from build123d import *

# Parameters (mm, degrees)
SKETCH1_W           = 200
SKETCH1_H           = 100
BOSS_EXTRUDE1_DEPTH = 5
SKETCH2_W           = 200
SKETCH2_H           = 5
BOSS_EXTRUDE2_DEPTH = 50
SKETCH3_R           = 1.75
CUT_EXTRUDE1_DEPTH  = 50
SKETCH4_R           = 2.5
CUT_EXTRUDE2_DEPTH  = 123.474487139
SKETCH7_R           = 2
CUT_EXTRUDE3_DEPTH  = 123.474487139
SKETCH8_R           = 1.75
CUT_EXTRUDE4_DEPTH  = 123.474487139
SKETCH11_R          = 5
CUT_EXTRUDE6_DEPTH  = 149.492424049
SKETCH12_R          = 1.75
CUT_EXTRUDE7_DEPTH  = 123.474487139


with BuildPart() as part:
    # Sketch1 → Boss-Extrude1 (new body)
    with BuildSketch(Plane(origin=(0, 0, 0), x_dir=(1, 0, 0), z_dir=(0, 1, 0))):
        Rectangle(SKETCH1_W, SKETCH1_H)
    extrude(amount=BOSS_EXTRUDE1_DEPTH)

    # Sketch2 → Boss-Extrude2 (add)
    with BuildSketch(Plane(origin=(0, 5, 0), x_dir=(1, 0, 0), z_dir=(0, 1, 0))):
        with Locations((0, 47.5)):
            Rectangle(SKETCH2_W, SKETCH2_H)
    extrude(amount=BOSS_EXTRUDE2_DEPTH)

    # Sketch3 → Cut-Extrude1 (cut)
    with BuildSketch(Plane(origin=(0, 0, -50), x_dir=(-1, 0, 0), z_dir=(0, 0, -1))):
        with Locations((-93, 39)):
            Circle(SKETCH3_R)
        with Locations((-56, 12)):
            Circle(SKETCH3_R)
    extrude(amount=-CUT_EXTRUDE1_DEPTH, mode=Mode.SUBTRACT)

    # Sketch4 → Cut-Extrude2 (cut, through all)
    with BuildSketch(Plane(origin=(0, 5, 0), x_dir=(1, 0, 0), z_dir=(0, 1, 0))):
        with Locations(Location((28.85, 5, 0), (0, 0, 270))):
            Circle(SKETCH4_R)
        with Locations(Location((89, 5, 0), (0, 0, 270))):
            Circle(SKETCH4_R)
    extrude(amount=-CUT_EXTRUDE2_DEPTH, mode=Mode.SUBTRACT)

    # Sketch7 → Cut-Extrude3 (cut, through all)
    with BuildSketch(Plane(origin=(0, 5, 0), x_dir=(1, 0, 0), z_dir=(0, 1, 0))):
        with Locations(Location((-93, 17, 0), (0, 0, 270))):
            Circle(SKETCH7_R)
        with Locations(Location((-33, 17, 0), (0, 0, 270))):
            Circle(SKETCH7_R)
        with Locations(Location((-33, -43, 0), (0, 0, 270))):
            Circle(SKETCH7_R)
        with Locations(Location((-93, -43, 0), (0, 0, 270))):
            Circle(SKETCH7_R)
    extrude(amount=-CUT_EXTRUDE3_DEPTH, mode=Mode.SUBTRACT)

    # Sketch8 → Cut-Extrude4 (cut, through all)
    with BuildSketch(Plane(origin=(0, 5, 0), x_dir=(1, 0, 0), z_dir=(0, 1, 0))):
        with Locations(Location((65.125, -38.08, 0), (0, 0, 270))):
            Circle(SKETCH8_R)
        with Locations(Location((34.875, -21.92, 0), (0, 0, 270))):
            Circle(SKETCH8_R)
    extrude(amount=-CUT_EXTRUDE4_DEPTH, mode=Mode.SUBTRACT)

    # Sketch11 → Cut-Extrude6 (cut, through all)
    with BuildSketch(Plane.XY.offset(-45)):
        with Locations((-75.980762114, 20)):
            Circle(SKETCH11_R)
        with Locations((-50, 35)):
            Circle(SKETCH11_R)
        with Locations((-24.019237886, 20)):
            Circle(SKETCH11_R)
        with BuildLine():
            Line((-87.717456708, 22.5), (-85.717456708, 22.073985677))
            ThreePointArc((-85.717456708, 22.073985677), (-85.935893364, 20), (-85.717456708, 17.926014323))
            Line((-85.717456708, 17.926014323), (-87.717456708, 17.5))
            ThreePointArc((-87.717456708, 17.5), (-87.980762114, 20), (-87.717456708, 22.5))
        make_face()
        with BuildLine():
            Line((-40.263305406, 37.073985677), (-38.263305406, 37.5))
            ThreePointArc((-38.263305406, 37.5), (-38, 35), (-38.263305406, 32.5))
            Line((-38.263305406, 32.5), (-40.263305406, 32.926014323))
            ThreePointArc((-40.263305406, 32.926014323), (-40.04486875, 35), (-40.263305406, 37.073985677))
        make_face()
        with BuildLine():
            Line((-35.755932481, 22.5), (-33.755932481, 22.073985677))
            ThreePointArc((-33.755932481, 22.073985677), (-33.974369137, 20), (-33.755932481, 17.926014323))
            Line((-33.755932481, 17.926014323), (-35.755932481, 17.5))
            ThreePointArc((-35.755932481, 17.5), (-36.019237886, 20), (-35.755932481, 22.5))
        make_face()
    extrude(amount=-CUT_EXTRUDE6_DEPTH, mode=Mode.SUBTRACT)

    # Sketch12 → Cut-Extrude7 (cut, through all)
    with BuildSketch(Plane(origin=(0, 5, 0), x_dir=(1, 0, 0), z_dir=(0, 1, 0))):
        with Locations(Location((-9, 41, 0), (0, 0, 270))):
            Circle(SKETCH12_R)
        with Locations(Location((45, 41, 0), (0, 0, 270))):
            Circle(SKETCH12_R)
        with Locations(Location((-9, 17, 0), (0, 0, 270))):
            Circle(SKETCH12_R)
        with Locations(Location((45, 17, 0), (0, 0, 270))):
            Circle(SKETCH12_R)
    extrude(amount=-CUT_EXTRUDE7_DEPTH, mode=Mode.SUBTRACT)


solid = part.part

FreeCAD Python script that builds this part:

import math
import FreeCAD as App
import Part
import Sketcher
Q = App.Units.Quantity

doc = App.newDocument("Part")
body = doc.addObject("PartDesign::Body", "Body")

sketch1 = body.newObject("Sketcher::SketchObject", "Sketch")
sketch1.AttachmentSupport = (doc.getObject("XZ_Plane"), [""])
sketch1.MapMode = "FlatFace"
sketch1.addGeometry([
    Part.LineSegment(App.Vector(-100, -50, 0), App.Vector(-100, 50, 0)),
    Part.LineSegment(App.Vector(-100, 50, 0), App.Vector(100, 50, 0)),
    Part.LineSegment(App.Vector(100, 50, 0), App.Vector(100, -50, 0)),
    Part.LineSegment(App.Vector(100, -50, 0), App.Vector(-100, -50, 0)),
], False)
sketch1.addConstraint([
    Sketcher.Constraint("Coincident", 0, 2, 1, 1),
    Sketcher.Constraint("Coincident", 1, 2, 2, 1),
    Sketcher.Constraint("Coincident", 2, 2, 3, 1),
    Sketcher.Constraint("Coincident", 3, 2, 0, 1),
    Sketcher.Constraint("Vertical", 0),
    Sketcher.Constraint("Horizontal", 1),
    Sketcher.Constraint("Vertical", 2),
    Sketcher.Constraint("Horizontal", 3),
    Sketcher.Constraint("Symmetric", 0, 2, 2, 2, -1, 1),
    Sketcher.Constraint("DistanceX", 1, 1, 1, 2, Q("200 mm")),
    Sketcher.Constraint("DistanceY", 0, 1, 0, 2, Q("100 mm")),
])
pad1 = body.newObject("PartDesign::Pad", "Pad")
pad1.Profile = sketch1
pad1.Length = 5
pad1.Reversed = True

sketch2 = body.newObject("Sketcher::SketchObject", "Sketch001")
sketch2.AttachmentSupport = (doc.getObject("XZ_Plane"), [""])
sketch2.MapMode = "FlatFace"
sketch2.AttachmentOffset = App.Placement(App.Vector(0, 0, -5), App.Rotation())
sketch2.addGeometry([
    Part.LineSegment(App.Vector(-100, -50, 0), App.Vector(-100, -45, 0)),
    Part.LineSegment(App.Vector(-100, -45, 0), App.Vector(100, -45, 0)),
    Part.LineSegment(App.Vector(100, -45, 0), App.Vector(100, -50, 0)),
    Part.LineSegment(App.Vector(100, -50, 0), App.Vector(-100, -50, 0)),
], False)
sketch2.addConstraint([
    Sketcher.Constraint("Coincident", 0, 2, 1, 1),
    Sketcher.Constraint("Coincident", 1, 2, 2, 1),
    Sketcher.Constraint("Coincident", 2, 2, 3, 1),
    Sketcher.Constraint("Coincident", 3, 2, 0, 1),
    Sketcher.Constraint("Vertical", 0),
    Sketcher.Constraint("Horizontal", 1),
    Sketcher.Constraint("Vertical", 2),
    Sketcher.Constraint("Horizontal", 3),
    Sketcher.Constraint("DistanceX", 1, 1, 1, 2, Q("200 mm")),
    Sketcher.Constraint("DistanceY", 0, 1, 0, 2, Q("5 mm")),
    Sketcher.Constraint("DistanceX", 0, 2, -1, 1, Q("100 mm")),
    Sketcher.Constraint("DistanceY", 0, 2, -1, 1, Q("45 mm")),
])
pad2 = body.newObject("PartDesign::Pad", "Pad001")
pad2.Profile = sketch2
pad2.Length = 50
pad2.Reversed = True

sketch3 = body.newObject("Sketcher::SketchObject", "Sketch002")
sketch3.AttachmentSupport = (doc.getObject("XY_Plane"), [""])
sketch3.MapMode = "FlatFace"
sketch3.AttachmentOffset = App.Placement(App.Vector(0, 0, -50), App.Rotation())
sketch3.addGeometry([
    Part.Circle(App.Vector(93, 39, 0), App.Vector(0, 0, 1), 1.75),
    Part.Circle(App.Vector(56, 12, 0), App.Vector(0, 0, 1), 1.75),
], False)
sketch3.addConstraint([
    Sketcher.Constraint("Equal", 0, 1),
    Sketcher.Constraint("Diameter", 0, Q("3.5 mm")),
    Sketcher.Constraint("DistanceX", -1, 1, 0, 3, Q("93 mm")),
    Sketcher.Constraint("DistanceY", -1, 1, 0, 3, Q("39 mm")),
    Sketcher.Constraint("DistanceX", -1, 1, 1, 3, Q("56 mm")),
    Sketcher.Constraint("DistanceY", -1, 1, 1, 3, Q("12 mm")),
])
pocket1 = body.newObject("PartDesign::Pocket", "Pocket")
pocket1.Profile = sketch3
pocket1.Length = 50
pocket1.Reversed = True

sketch4 = body.newObject("Sketcher::SketchObject", "Sketch003")
sketch4.AttachmentSupport = (doc.getObject("XZ_Plane"), [""])
sketch4.MapMode = "FlatFace"
sketch4.AttachmentOffset = App.Placement(App.Vector(0, 0, -5), App.Rotation())
sketch4.addGeometry([
    Part.Circle(App.Vector(28.85, -5, 0), App.Vector(0, 0, 1), 2.5),
    Part.Circle(App.Vector(89, -5, 0), App.Vector(0, 0, 1), 2.5),
], False)
sketch4.addConstraint([
    Sketcher.Constraint("Equal", 0, 1),
    Sketcher.Constraint("Horizontal", 0, 3, 1, 3),
    Sketcher.Constraint("Diameter", 0, Q("5 mm")),
    Sketcher.Constraint("DistanceY", 0, 3, -1, 1, Q("5 mm")),
    Sketcher.Constraint("DistanceX", -1, 1, 1, 3, Q("89 mm")),
    Sketcher.Constraint("DistanceX", -1, 1, 0, 3, Q("28.85 mm")),
])
pocket2 = body.newObject("PartDesign::Pocket", "Pocket001")
pocket2.Profile = sketch4
pocket2.Type = "ThroughAll"
pocket2.Reversed = True

sketch5 = body.newObject("Sketcher::SketchObject", "Sketch004")
sketch5.AttachmentSupport = (doc.getObject("XZ_Plane"), [""])
sketch5.MapMode = "FlatFace"
sketch5.AttachmentOffset = App.Placement(App.Vector(0, 0, -5), App.Rotation())
sketch5.addGeometry([
    Part.Circle(App.Vector(-93, -17, 0), App.Vector(0, 0, 1), 2),
    Part.Circle(App.Vector(-33, -17, 0), App.Vector(0, 0, 1), 2),
    Part.Circle(App.Vector(-33, 43, 0), App.Vector(0, 0, 1), 2),
    Part.Circle(App.Vector(-93, 43, 0), App.Vector(0, 0, 1), 2),
], False)
sketch5.addConstraint([
    Sketcher.Constraint("Equal", 0, 1),
    Sketcher.Constraint("Equal", 1, 2),
    Sketcher.Constraint("Equal", 2, 3),
    Sketcher.Constraint("Horizontal", 0, 3, 1, 3),
    Sketcher.Constraint("Horizontal", 2, 3, 3, 3),
    Sketcher.Constraint("Vertical", 1, 3, 2, 3),
    Sketcher.Constraint("Vertical", 0, 3, 3, 3),
    Sketcher.Constraint("Diameter", 0, Q("4 mm")),
    Sketcher.Constraint("DistanceX", 0, 3, -1, 1, Q("93 mm")),
    Sketcher.Constraint("DistanceY", 0, 3, -1, 1, Q("17 mm")),
    Sketcher.Constraint("DistanceX", 1, 3, -1, 1, Q("33 mm")),
    Sketcher.Constraint("DistanceY", -1, 1, 2, 3, Q("43 mm")),
])
pocket3 = body.newObject("PartDesign::Pocket", "Pocket002")
pocket3.Profile = sketch5
pocket3.Type = "ThroughAll"
pocket3.Reversed = True

sketch6 = body.newObject("Sketcher::SketchObject", "Sketch005")
sketch6.AttachmentSupport = (doc.getObject("XZ_Plane"), [""])
sketch6.MapMode = "FlatFace"
sketch6.AttachmentOffset = App.Placement(App.Vector(0, 0, -5), App.Rotation())
sketch6.addGeometry([
    Part.Circle(App.Vector(65.125, 38.08, 0), App.Vector(0, 0, 1), 1.75),
    Part.Circle(App.Vector(34.875, 21.92, 0), App.Vector(0, 0, 1), 1.75),
], False)
sketch6.addConstraint([
    Sketcher.Constraint("Equal", 0, 1),
    Sketcher.Constraint("Diameter", 0, Q("3.5 mm")),
    Sketcher.Constraint("DistanceY", -1, 1, 0, 3, Q("38.08 mm")),
    Sketcher.Constraint("DistanceY", -1, 1, 1, 3, Q("21.92 mm")),
    Sketcher.Constraint("DistanceX", 1, 3, 0, 3, Q("30.25 mm")),
    Sketcher.Constraint("DistanceX", -1, 1, 0, 3, Q("65.125 mm")),
])
pocket4 = body.newObject("PartDesign::Pocket", "Pocket003")
pocket4.Profile = sketch6
pocket4.Type = "ThroughAll"
pocket4.Reversed = True

sketch7 = body.newObject("Sketcher::SketchObject", "Sketch006")
sketch7.AttachmentSupport = (doc.getObject("XY_Plane"), [""])
sketch7.MapMode = "FlatFace"
sketch7.AttachmentOffset = App.Placement(App.Vector(0, 0, -45), App.Rotation())
sketch7.addGeometry([
    Part.Circle(App.Vector(-75.980762, 20, 0), App.Vector(0, 0, 1), 5),
    Part.Circle(App.Vector(-50, 35, 0), App.Vector(0, 0, 1), 5),
    Part.Circle(App.Vector(-24.019238, 20, 0), App.Vector(0, 0, 1), 5),
    Part.LineSegment(App.Vector(-85.717457, 22.073986, 0), App.Vector(-87.717457, 22.5, 0)),
    Part.ArcOfCircle(Part.Circle(App.Vector(-75.980762, 20, 0), App.Vector(0, 0, 1), 12), math.radians(167.975301), math.radians(192.024699)),
    Part.LineSegment(App.Vector(-87.717457, 17.5, 0), App.Vector(-85.717457, 17.926014, 0)),
    Part.ArcOfCircle(Part.Circle(App.Vector(-75.980762, 20, 0), App.Vector(0, 0, 1), 9.955131), math.radians(167.975301), math.radians(192.024699)),
    Part.LineSegment(App.Vector(-38.263305, 37.5, 0), App.Vector(-40.263305, 37.073986, 0)),
    Part.ArcOfCircle(Part.Circle(App.Vector(-50, 35, 0), App.Vector(0, 0, 1), 9.955131), math.radians(-12.024699), math.radians(12.024699)),
    Part.LineSegment(App.Vector(-40.263305, 32.926014, 0), App.Vector(-38.263305, 32.5, 0)),
    Part.ArcOfCircle(Part.Circle(App.Vector(-50, 35, 0), App.Vector(0, 0, 1), 12), math.radians(-12.024699), math.radians(12.024699)),
    Part.LineSegment(App.Vector(-33.755932, 22.073986, 0), App.Vector(-35.755932, 22.5, 0)),
    Part.ArcOfCircle(Part.Circle(App.Vector(-24.019238, 20, 0), App.Vector(0, 0, 1), 12), math.radians(167.975301), math.radians(192.024699)),
    Part.LineSegment(App.Vector(-35.755932, 17.5, 0), App.Vector(-33.755932, 17.926014, 0)),
    Part.ArcOfCircle(Part.Circle(App.Vector(-24.019238, 20, 0), App.Vector(0, 0, 1), 9.955131), math.radians(167.975301), math.radians(192.024699)),
], False)
sketch7.addConstraint([
    Sketcher.Constraint("Coincident", 3, 2, 4, 1),
    Sketcher.Constraint("Coincident", 4, 2, 5, 1),
    Sketcher.Constraint("Coincident", 5, 2, 6, 2),
    Sketcher.Constraint("Coincident", 6, 1, 3, 1),
    Sketcher.Constraint("Coincident", 7, 2, 8, 2),
    Sketcher.Constraint("Coincident", 8, 1, 9, 1),
    Sketcher.Constraint("Coincident", 9, 2, 10, 1),
    Sketcher.Constraint("Coincident", 10, 2, 7, 1),
    Sketcher.Constraint("Coincident", 11, 2, 12, 1),
    Sketcher.Constraint("Coincident", 12, 2, 13, 1),
    Sketcher.Constraint("Coincident", 13, 2, 14, 2),
    Sketcher.Constraint("Coincident", 14, 1, 11, 1),
    Sketcher.Constraint("Coincident", 4, 3, 0, 3),
    Sketcher.Constraint("Coincident", 6, 3, 0, 3),
    Sketcher.Constraint("Coincident", 8, 3, 1, 3),
    Sketcher.Constraint("Coincident", 10, 3, 1, 3),
    Sketcher.Constraint("Coincident", 12, 3, 2, 3),
    Sketcher.Constraint("Coincident", 14, 3, 2, 3),
    Sketcher.Constraint("Equal", 0, 1),
    Sketcher.Constraint("Equal", 1, 2),
    Sketcher.Constraint("Equal", 6, 8),
    Sketcher.Constraint("Equal", 4, 10),
    Sketcher.Constraint("Equal", 10, 12),
    Sketcher.Constraint("Equal", 8, 14),
    Sketcher.Constraint("Parallel", 5, 7),
    Sketcher.Constraint("Parallel", 3, 9),
    Sketcher.Constraint("Parallel", 9, 11),
    Sketcher.Constraint("Parallel", 7, 13),
    Sketcher.Constraint("Horizontal", 0, 3, 2, 3),
    Sketcher.Constraint("Horizontal", 3, 2, 11, 2),
    Sketcher.Constraint("Horizontal", 4, 2, 12, 2),
    Sketcher.Constraint("Vertical", 3, 2, 4, 2),
    Sketcher.Constraint("Vertical", 5, 2, 6, 1),
    Sketcher.Constraint("Vertical", 7, 2, 8, 1),
    Sketcher.Constraint("Diameter", 0, Q("10 mm")),
    Sketcher.Constraint("Radius", 4, Q("12 mm")),
    Sketcher.Constraint("DistanceY", -1, 1, 0, 3, Q("20 mm")),
    Sketcher.Constraint("DistanceX", 1, 3, -1, 1, Q("50 mm")),
    Sketcher.Constraint("DistanceY", -1, 1, 1, 3, Q("35 mm")),
    Sketcher.Constraint("DistanceY", 4, 2, 3, 2, Q("5 mm")),
    Sketcher.Constraint("DistanceX", 4, 2, 5, 2, Q("2 mm")),
    Sketcher.Constraint("DistanceY", 9, 2, 10, 2, Q("5 mm")),
    Sketcher.Constraint("Radius", 6, Q("9.955131 mm")),
    Sketcher.Constraint("DistanceX", 0, 3, -1, 1, Q("75.980762 mm")),
    Sketcher.Constraint("DistanceX", 2, 3, -1, 1, Q("24.019238 mm")),
])
pocket5 = body.newObject("PartDesign::Pocket", "Pocket004")
pocket5.Profile = sketch7
pocket5.Type = "ThroughAll"

sketch8 = body.newObject("Sketcher::SketchObject", "Sketch007")
sketch8.AttachmentSupport = (doc.getObject("XZ_Plane"), [""])
sketch8.MapMode = "FlatFace"
sketch8.AttachmentOffset = App.Placement(App.Vector(0, 0, -5), App.Rotation())
sketch8.addGeometry([
    Part.Circle(App.Vector(-9, -41, 0), App.Vector(0, 0, 1), 1.75),
    Part.Circle(App.Vector(45, -41, 0), App.Vector(0, 0, 1), 1.75),
    Part.Circle(App.Vector(-9, -17, 0), App.Vector(0, 0, 1), 1.75),
    Part.Circle(App.Vector(45, -17, 0), App.Vector(0, 0, 1), 1.75),
], False)
sketch8.addConstraint([
    Sketcher.Constraint("Equal", 0, 1),
    Sketcher.Constraint("Equal", 1, 2),
    Sketcher.Constraint("Equal", 2, 3),
    Sketcher.Constraint("Horizontal", 0, 3, 1, 3),
    Sketcher.Constraint("Horizontal", 2, 3, 3, 3),
    Sketcher.Constraint("Vertical", 0, 3, 2, 3),
    Sketcher.Constraint("Vertical", 1, 3, 3, 3),
    Sketcher.Constraint("Diameter", 0, Q("3.5 mm")),
    Sketcher.Constraint("DistanceX", 0, 3, -1, 1, Q("9 mm")),
    Sketcher.Constraint("DistanceY", 0, 3, -1, 1, Q("41 mm")),
    Sketcher.Constraint("DistanceX", -1, 1, 1, 3, Q("45 mm")),
    Sketcher.Constraint("DistanceY", 2, 3, -1, 1, Q("17 mm")),
])
pocket6 = body.newObject("PartDesign::Pocket", "Pocket005")
pocket6.Profile = sketch8
pocket6.Type = "ThroughAll"
pocket6.Reversed = True

doc.recompute()
